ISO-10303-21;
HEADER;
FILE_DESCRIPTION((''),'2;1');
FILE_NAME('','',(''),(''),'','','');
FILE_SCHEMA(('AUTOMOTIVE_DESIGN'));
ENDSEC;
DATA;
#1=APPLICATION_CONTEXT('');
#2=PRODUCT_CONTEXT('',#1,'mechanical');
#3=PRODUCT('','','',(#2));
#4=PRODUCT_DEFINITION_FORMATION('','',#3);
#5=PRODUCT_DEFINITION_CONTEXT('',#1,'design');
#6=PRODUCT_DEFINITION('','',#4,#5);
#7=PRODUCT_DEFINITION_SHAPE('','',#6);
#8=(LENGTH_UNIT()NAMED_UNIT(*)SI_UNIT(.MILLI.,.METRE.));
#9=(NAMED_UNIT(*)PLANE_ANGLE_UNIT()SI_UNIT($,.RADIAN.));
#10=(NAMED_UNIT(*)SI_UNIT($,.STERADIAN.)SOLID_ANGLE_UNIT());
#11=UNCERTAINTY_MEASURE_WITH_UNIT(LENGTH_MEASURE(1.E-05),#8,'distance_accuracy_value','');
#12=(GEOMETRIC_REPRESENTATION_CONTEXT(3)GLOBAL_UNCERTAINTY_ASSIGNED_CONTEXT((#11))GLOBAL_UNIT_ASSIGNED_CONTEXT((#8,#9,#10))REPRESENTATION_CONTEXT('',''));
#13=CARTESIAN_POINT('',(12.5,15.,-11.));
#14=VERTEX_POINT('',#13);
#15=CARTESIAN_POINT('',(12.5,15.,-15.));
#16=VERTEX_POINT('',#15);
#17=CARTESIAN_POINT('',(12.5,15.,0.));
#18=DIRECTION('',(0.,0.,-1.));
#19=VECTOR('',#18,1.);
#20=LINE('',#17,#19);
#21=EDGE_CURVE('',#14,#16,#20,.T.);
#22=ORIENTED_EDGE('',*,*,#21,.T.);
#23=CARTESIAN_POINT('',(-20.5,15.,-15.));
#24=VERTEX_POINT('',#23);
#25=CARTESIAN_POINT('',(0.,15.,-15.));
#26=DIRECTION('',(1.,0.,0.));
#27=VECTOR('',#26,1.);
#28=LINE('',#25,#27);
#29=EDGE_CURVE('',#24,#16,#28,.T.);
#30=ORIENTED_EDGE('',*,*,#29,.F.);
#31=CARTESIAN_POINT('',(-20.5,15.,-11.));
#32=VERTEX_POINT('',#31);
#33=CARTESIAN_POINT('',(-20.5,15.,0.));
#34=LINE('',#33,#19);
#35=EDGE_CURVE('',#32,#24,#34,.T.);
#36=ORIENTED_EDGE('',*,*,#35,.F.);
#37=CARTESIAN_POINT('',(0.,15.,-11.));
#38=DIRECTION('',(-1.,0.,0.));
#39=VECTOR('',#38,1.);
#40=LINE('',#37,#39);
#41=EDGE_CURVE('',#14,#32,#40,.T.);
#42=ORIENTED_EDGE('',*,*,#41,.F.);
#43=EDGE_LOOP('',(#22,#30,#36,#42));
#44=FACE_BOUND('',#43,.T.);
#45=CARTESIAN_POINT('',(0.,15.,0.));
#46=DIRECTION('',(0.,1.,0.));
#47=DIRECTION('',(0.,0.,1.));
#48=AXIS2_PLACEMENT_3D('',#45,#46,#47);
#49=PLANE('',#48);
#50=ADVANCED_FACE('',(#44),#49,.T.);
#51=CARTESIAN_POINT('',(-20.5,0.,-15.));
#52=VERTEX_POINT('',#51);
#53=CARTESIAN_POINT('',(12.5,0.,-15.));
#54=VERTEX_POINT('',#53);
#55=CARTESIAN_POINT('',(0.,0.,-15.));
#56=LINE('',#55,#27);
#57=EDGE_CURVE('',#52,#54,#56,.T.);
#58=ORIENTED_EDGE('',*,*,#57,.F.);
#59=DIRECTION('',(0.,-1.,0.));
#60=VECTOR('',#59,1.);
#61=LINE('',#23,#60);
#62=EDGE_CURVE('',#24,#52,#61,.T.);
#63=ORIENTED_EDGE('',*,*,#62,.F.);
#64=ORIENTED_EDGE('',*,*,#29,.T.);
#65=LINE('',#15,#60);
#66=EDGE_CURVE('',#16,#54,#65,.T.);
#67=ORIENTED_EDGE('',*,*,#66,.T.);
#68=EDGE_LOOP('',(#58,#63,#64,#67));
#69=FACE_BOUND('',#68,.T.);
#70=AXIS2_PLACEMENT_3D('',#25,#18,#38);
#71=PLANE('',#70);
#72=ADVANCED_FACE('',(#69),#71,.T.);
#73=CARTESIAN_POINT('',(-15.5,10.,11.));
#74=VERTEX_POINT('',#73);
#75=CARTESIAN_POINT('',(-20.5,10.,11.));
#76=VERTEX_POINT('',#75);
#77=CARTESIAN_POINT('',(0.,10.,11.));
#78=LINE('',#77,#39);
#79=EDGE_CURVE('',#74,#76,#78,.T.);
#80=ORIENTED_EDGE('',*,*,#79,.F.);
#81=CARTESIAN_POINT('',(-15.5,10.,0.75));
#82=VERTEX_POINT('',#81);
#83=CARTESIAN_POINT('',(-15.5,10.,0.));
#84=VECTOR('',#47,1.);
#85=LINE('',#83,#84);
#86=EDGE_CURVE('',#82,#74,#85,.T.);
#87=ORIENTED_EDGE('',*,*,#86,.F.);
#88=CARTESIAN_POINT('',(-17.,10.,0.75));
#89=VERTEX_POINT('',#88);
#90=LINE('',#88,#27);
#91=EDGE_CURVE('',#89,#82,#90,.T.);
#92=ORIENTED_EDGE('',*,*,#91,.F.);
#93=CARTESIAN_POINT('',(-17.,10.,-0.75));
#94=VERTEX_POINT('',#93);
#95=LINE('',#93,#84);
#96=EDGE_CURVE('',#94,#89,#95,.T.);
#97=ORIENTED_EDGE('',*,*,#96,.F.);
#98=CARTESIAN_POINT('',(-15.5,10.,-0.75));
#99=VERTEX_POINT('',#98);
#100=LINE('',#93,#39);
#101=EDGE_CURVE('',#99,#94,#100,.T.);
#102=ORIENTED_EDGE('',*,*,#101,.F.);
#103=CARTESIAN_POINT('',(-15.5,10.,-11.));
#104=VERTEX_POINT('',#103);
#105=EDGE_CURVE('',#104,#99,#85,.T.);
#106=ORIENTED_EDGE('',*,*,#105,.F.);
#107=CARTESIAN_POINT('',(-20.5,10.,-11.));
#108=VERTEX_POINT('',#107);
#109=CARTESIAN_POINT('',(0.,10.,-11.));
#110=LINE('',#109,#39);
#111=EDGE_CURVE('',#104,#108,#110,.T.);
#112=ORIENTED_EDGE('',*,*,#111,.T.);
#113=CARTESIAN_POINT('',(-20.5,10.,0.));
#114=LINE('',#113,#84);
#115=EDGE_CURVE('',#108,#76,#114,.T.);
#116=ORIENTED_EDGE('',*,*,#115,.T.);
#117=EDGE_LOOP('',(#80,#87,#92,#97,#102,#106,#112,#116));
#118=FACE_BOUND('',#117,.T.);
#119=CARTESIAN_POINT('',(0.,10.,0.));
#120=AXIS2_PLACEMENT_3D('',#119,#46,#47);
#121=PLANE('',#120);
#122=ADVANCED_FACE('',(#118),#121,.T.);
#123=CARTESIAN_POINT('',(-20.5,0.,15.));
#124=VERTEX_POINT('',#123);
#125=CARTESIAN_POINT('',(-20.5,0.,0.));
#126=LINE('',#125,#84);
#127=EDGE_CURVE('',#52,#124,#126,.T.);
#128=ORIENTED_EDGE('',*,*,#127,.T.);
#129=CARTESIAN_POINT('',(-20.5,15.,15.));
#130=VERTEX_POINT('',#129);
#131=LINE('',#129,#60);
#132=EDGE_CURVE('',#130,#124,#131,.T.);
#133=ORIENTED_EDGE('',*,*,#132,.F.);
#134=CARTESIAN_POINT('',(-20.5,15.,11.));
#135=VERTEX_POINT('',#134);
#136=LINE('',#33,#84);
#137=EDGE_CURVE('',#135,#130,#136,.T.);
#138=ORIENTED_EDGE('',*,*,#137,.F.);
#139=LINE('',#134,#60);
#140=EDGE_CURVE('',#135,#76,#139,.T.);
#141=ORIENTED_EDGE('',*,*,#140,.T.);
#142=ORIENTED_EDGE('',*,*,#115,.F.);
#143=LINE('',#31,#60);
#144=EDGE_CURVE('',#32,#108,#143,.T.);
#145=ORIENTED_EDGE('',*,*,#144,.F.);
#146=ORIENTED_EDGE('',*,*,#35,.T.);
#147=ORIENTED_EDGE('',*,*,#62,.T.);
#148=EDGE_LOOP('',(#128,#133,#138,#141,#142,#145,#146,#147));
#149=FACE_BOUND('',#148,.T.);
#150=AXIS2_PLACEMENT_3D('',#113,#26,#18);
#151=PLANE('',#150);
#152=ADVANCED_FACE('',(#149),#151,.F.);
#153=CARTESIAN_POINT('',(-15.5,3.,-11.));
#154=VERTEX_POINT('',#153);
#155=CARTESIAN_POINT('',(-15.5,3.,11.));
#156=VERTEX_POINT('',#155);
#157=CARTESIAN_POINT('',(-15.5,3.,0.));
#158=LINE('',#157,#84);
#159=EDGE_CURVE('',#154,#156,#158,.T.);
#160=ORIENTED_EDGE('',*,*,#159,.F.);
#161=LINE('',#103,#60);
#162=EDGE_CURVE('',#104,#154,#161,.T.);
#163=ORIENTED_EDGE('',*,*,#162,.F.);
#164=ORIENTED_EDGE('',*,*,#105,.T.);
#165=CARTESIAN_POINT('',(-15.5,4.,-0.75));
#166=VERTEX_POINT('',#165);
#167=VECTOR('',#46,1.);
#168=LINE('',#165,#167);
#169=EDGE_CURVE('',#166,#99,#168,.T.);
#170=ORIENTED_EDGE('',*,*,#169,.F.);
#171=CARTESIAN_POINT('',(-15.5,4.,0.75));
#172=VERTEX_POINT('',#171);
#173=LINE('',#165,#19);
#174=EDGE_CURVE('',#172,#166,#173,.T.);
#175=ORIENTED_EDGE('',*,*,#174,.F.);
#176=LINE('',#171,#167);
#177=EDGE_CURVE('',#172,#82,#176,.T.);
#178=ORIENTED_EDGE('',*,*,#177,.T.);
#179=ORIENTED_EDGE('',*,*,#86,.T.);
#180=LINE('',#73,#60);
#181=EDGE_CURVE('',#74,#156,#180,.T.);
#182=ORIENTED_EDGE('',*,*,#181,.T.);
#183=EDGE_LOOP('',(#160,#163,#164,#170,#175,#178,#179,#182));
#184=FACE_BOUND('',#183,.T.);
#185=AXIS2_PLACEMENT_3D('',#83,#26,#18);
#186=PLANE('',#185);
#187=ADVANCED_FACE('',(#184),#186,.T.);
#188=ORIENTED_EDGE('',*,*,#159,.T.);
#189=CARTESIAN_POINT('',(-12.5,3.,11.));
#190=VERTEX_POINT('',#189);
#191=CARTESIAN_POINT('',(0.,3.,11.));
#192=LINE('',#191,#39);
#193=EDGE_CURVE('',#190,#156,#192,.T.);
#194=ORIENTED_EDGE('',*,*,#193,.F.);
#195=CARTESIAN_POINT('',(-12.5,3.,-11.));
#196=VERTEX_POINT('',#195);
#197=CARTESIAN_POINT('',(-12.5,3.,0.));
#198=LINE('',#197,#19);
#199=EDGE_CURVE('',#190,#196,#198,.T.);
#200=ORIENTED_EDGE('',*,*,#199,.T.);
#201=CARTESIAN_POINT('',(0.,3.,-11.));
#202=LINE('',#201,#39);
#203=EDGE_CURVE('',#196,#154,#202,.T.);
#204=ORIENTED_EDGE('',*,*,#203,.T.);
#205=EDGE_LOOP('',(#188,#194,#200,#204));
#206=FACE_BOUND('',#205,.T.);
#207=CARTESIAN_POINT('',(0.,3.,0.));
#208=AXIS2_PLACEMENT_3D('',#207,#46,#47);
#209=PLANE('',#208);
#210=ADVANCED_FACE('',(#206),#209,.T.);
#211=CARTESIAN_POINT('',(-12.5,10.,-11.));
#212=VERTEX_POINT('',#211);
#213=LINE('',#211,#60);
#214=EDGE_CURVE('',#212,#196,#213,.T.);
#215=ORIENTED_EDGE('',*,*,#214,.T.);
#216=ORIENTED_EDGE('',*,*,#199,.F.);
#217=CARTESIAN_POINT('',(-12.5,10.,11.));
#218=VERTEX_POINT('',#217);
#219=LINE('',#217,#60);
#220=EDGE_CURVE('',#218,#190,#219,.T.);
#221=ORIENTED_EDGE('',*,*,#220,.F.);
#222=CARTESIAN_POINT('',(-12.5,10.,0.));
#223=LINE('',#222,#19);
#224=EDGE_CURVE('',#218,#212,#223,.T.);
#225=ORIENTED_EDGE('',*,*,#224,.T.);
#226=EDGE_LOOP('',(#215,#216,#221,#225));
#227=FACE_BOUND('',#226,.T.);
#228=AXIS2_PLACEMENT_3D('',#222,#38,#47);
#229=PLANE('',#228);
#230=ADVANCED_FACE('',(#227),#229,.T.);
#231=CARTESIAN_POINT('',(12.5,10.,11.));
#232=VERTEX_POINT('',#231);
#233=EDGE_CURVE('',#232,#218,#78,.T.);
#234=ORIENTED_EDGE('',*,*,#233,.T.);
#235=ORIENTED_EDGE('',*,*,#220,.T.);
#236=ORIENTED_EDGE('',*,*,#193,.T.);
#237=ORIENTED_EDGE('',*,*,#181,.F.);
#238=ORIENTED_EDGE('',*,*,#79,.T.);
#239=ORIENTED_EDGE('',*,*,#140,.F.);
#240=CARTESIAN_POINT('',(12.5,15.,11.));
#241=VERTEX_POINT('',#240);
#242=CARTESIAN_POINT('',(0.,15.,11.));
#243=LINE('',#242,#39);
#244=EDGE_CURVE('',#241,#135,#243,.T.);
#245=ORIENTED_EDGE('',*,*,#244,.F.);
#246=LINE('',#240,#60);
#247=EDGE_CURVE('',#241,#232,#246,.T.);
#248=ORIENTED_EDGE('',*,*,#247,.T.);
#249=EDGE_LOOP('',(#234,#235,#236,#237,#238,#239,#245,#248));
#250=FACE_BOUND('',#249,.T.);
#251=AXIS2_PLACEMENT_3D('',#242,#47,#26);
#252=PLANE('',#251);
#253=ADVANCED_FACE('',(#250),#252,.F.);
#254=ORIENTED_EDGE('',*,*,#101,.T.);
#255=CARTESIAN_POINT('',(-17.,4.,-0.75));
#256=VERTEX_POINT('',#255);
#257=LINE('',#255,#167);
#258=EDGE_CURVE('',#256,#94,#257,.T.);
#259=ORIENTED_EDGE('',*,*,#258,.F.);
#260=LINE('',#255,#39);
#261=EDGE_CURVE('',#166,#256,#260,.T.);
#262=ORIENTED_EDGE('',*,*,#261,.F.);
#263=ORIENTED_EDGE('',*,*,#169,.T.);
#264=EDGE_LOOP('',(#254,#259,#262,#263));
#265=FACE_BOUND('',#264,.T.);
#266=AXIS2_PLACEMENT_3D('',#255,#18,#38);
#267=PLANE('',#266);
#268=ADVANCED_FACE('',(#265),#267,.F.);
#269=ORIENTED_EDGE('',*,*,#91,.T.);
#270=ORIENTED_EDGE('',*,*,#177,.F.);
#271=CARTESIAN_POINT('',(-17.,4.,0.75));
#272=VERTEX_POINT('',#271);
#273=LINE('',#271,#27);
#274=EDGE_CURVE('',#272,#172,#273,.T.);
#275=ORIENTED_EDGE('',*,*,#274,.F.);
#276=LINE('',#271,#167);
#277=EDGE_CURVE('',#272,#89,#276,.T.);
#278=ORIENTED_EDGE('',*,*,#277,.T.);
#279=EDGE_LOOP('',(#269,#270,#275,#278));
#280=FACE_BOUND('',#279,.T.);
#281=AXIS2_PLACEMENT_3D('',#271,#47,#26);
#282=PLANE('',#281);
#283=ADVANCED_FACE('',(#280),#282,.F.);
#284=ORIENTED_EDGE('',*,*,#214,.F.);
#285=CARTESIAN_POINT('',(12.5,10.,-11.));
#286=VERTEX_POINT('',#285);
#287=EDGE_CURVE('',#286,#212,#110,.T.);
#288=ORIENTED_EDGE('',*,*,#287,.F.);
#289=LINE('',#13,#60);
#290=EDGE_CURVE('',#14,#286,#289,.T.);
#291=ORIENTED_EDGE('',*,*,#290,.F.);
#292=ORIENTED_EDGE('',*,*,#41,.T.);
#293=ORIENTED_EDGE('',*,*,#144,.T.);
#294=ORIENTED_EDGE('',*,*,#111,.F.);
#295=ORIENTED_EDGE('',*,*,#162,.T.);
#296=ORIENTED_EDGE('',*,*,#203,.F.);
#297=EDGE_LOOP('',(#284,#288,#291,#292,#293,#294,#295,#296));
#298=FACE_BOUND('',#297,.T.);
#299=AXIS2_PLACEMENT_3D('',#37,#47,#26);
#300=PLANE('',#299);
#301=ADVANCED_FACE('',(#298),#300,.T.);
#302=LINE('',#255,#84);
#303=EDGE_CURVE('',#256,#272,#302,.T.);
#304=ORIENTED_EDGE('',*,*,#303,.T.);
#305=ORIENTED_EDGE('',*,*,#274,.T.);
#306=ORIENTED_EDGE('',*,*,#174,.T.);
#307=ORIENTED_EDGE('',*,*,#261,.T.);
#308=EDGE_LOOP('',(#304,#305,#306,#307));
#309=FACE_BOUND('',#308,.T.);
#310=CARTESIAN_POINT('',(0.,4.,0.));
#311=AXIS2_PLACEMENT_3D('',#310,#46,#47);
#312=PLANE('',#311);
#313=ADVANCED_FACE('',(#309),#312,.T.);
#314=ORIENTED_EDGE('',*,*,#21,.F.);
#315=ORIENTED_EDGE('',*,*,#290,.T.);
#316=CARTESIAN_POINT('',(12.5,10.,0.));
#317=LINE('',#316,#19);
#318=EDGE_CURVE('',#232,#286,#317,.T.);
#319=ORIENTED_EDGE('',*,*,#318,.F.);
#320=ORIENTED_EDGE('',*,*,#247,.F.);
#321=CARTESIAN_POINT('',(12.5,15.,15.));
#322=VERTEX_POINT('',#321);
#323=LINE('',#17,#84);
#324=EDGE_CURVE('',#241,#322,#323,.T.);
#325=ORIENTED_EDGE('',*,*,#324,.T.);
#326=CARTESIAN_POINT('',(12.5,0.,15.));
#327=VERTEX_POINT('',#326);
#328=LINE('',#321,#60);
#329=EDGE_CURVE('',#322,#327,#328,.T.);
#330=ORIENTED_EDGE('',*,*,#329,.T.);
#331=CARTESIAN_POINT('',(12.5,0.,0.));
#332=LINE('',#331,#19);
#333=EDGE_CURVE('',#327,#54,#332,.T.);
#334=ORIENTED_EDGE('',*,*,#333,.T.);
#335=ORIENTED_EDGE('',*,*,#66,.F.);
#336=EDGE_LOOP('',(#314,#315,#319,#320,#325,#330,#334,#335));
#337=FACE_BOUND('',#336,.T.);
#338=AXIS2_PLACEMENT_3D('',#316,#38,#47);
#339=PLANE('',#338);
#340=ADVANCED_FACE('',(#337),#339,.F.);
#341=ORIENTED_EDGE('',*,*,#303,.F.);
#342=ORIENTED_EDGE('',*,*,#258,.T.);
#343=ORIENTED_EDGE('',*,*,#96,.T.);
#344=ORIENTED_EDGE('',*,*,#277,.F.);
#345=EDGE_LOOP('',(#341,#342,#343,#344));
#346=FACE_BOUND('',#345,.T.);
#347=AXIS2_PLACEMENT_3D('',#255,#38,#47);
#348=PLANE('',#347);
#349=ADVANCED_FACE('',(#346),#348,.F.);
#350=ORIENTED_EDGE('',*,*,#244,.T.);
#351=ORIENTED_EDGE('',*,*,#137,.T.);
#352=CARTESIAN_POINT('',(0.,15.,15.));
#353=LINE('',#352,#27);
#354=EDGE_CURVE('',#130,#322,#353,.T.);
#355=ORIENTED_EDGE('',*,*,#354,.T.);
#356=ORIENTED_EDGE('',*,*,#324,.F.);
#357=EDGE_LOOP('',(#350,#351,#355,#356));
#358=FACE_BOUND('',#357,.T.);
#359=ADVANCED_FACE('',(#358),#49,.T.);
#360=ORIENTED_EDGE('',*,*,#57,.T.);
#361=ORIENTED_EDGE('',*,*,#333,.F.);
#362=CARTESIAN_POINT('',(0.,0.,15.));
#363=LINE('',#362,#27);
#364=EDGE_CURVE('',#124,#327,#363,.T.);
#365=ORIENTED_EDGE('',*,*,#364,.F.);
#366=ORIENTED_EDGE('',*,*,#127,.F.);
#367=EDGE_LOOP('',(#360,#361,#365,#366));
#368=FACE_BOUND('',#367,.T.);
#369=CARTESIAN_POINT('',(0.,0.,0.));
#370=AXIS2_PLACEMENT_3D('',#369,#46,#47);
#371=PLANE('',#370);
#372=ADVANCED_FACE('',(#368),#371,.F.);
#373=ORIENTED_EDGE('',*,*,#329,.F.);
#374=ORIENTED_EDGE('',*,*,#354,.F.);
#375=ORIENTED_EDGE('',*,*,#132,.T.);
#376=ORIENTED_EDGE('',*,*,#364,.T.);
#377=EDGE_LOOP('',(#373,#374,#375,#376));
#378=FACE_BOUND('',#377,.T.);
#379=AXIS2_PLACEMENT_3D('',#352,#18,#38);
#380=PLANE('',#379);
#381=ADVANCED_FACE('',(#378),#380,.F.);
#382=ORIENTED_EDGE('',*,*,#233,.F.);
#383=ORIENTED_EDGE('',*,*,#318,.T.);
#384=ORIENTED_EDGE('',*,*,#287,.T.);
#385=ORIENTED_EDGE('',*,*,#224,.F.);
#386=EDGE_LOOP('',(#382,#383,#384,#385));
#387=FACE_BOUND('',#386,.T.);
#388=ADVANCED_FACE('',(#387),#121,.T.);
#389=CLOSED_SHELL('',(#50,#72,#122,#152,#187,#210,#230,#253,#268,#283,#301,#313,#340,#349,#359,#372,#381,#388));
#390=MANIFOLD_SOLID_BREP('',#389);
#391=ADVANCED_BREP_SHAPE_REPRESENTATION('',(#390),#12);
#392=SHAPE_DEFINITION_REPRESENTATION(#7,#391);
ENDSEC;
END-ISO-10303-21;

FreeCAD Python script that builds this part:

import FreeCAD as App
import Part
import Sketcher

V = App.Vector
Q = App.Units.Quantity


def add_polygon(sketch, points):
    """Adds a closed chain of lines whose ends are joined by coincident constraints."""
    first, n = sketch.GeometryCount, len(points)
    for a, b in zip(points, points[1:] + points[:1]):
        sketch.addGeometry(Part.LineSegment(App.Vector(*a, 0), App.Vector(*b, 0)), False)
    for i in range(n):
        sketch.addConstraint(Sketcher.Constraint("Coincident", first + i, 2, first + (i + 1) % n, 1))

doc = App.newDocument("Part")
body = doc.addObject("PartDesign::Body", "Body")

sketch1 = body.newObject("Sketcher::SketchObject", "Sketch")
sketch1.AttachmentSupport = (doc.getObject("XZ_Plane"), [""])
sketch1.MapMode = "FlatFace"
add_polygon(sketch1, [(-15.5, -11), (-15.5, 11), (-12.5, 11), (-12.5, -11)])
sketch1.addConstraint([
    Sketcher.Constraint("Vertical", 0),
    Sketcher.Constraint("Horizontal", 1),
    Sketcher.Constraint("Vertical", 2),
    Sketcher.Constraint("Horizontal", 3),
    Sketcher.Constraint("DistanceX", 1, 1, 1, 2, Q("3 mm")),
    Sketcher.Constraint("DistanceY", 0, 1, 0, 2, Q("22 mm")),
    Sketcher.Constraint("DistanceY", -1, 1, 0, 2, Q("11 mm")),
    Sketcher.Constraint("DistanceX", 0, 2, -1, 1, Q("15.5 mm")),
])
pad1 = body.newObject("PartDesign::Pad", "Pad")
pad1.Profile = sketch1
pad1.Length = 3
pad1.Reversed = True

sketch2 = body.newObject("Sketcher::SketchObject", "Sketch001")
sketch2.AttachmentSupport = (doc.getObject("XZ_Plane"), [""])
sketch2.MapMode = "FlatFace"
add_polygon(sketch2, [(-12.5, -11), (-12.5, 11), (12.5, 11), (12.5, -11)])
add_polygon(sketch2, [(-20.5, -11), (-20.5, 11), (-15.5, 11), (-15.5, -11)])
sketch2.addConstraint([
    Sketcher.Constraint("Vertical", 0),
    Sketcher.Constraint("Horizontal", 1),
    Sketcher.Constraint("Vertical", 2),
    Sketcher.Constraint("Horizontal", 3),
    Sketcher.Constraint("Vertical", 4),
    Sketcher.Constraint("Horizontal", 5),
    Sketcher.Constraint("Vertical", 6),
    Sketcher.Constraint("Horizontal", 7),
    Sketcher.Constraint("Symmetric", 0, 2, 2, 2, -1, 1),
    Sketcher.Constraint("Horizontal", 1, 2, 4, 2),
    Sketcher.Constraint("Horizontal", 3, 2, 6, 2),
    Sketcher.Constraint("DistanceX", 1, 1, 1, 2, Q("25 mm")),
    Sketcher.Constraint("DistanceX", 5, 1, 5, 2, Q("5 mm")),
    Sketcher.Constraint("DistanceY", 0, 1, 0, 2, Q("22 mm")),
    Sketcher.Constraint("DistanceX", 4, 2, 0, 2, Q("8 mm")),
])
pad2 = body.newObject("PartDesign::Pad", "Pad001")
pad2.Profile = sketch2
pad2.Length = 10
pad2.Reversed = True

sketch3 = body.newObject("Sketcher::SketchObject", "Sketch002")
sketch3.AttachmentSupport = (doc.getObject("XZ_Plane"), [""])
sketch3.MapMode = "FlatFace"
add_polygon(sketch3, [(-20.5, -11), (12.5, -11), (12.5, -15), (-20.5, -15)])
add_polygon(sketch3, [(12.5, 15), (12.5, 11), (-20.5, 11), (-20.5, 15)])
sketch3.addConstraint([
    Sketcher.Constraint("Horizontal", 0),
    Sketcher.Constraint("Vertical", 1),
    Sketcher.Constraint("Horizontal", 2),
    Sketcher.Constraint("Vertical", 3),
    Sketcher.Constraint("Vertical", 4),
    Sketcher.Constraint("Horizontal", 5),
    Sketcher.Constraint("Vertical", 6),
    Sketcher.Constraint("Horizontal", 7),
    Sketcher.Constraint("Symmetric", 0, 2, 4, 2, -1),
    Sketcher.Constraint("Symmetric", 2, 2, 6, 2, -1),
    Sketcher.Constraint("DistanceX", 0, 1, 0, 2, Q("33 mm")),
    Sketcher.Constraint("DistanceY", 1, 2, 1, 1, Q("4 mm")),
    Sketcher.Constraint("DistanceY", 0, 2, -1, 1, Q("11 mm")),
    Sketcher.Constraint("DistanceX", -1, 1, 0, 2, Q("12.5 mm")),
])
pad3 = body.newObject("PartDesign::Pad", "Pad002")
pad3.Profile = sketch3
pad3.Length = 15
pad3.Reversed = True

sketch4 = body.newObject("Sketcher::SketchObject", "Sketch003")
sketch4.AttachmentSupport = (doc.getObject("XZ_Plane"), [""])
sketch4.MapMode = "FlatFace"
sketch4.AttachmentOffset = App.Placement(V(0, 0, -10), App.Rotation())
add_polygon(sketch4, [(-17, -0.75), (-17, 0.75), (-15.5, 0.75), (-15.5, -0.75)])
sketch4.addConstraint([
    Sketcher.Constraint("Vertical", 0),
    Sketcher.Constraint("Horizontal", 1),
    Sketcher.Constraint("Vertical", 2),
    Sketcher.Constraint("Horizontal", 3),
    Sketcher.Constraint("Equal", 3, 0),
    Sketcher.Constraint("DistanceX", 1, 1, 1, 2, Q("1.5 mm")),
    Sketcher.Constraint("DistanceX", 0, 2, -1, 1, Q("17 mm")),
    Sketcher.Constraint("DistanceY", -1, 1, 0, 2, Q("0.75 mm")),
])
pocket1 = body.newObject("PartDesign::Pocket", "Pocket")
pocket1.Profile = sketch4
pocket1.Length = 6
pocket1.Reversed = True

doc.recompute()
